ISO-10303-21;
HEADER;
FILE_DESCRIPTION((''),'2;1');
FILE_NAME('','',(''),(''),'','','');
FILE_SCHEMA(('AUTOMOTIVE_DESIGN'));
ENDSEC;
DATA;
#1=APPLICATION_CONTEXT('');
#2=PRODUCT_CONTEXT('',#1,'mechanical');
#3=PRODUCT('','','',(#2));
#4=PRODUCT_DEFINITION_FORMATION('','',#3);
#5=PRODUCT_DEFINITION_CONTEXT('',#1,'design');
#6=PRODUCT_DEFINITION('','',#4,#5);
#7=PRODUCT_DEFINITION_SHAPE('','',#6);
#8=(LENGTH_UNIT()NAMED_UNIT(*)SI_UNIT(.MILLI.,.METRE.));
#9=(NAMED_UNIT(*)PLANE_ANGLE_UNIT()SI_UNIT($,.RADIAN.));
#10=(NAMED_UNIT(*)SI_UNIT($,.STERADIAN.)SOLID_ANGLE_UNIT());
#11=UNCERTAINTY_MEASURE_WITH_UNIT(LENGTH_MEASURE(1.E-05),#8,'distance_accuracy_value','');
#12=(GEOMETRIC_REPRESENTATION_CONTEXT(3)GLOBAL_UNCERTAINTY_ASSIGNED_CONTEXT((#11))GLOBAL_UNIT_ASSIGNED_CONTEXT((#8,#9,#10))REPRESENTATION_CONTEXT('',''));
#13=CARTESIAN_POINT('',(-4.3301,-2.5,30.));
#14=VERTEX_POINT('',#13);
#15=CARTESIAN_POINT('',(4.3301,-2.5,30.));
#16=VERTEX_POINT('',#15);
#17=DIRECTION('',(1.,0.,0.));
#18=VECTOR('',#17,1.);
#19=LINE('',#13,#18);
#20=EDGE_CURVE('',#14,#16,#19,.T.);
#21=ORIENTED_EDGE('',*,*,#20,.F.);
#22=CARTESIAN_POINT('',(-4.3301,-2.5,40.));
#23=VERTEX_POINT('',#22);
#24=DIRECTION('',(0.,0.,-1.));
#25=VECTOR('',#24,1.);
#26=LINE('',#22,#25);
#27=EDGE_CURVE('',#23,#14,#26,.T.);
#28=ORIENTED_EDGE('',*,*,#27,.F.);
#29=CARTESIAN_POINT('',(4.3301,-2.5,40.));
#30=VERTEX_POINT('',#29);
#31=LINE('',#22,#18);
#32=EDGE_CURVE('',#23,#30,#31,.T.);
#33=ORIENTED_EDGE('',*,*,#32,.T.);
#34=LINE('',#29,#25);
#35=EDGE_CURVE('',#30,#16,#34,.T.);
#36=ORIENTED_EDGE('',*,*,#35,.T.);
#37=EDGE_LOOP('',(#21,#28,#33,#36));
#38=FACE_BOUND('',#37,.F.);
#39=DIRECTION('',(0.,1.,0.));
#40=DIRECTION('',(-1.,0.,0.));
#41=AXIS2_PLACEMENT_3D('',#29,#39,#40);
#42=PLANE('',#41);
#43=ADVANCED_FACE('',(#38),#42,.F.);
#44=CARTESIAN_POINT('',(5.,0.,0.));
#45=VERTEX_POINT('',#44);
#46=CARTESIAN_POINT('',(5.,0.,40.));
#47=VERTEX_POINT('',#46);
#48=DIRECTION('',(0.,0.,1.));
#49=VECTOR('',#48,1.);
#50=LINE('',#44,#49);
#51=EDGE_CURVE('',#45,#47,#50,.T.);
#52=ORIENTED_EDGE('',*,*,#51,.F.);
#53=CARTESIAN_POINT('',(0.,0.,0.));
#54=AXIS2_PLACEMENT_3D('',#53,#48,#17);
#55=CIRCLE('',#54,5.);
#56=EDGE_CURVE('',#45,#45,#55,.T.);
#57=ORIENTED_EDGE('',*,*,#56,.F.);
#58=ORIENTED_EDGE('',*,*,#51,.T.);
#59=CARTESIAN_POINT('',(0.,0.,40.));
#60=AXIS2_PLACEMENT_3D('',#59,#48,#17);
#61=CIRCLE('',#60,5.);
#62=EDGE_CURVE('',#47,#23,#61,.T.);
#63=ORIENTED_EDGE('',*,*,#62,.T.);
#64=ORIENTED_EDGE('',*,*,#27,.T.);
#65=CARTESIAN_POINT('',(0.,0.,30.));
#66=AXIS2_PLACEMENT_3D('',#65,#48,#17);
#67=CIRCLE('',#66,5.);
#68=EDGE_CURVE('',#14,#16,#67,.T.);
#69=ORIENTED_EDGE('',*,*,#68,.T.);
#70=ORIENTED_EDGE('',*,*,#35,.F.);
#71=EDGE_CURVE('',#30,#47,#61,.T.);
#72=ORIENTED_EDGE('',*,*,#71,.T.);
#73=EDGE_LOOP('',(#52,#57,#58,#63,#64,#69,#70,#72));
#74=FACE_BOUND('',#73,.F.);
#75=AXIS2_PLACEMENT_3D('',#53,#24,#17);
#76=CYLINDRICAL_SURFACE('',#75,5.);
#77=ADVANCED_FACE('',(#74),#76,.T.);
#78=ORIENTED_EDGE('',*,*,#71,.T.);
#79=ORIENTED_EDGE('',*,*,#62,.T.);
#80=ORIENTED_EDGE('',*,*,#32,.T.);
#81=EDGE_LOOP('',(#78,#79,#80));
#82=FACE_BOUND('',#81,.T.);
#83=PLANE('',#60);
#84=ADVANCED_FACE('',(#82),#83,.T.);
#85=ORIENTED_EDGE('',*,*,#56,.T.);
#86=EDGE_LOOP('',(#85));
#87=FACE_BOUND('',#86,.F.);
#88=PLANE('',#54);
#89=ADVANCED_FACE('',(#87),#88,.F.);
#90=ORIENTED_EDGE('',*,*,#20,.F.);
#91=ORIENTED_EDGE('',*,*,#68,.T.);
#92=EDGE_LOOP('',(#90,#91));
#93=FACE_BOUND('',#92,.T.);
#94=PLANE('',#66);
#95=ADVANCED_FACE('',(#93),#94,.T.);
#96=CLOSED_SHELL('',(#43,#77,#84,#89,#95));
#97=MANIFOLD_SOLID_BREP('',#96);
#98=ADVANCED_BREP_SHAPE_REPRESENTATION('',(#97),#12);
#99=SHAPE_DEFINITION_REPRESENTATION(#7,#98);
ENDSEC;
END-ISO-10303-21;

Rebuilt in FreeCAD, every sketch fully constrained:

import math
import FreeCAD as App
import Part
import Sketcher
Q = App.Units.Quantity

doc = App.newDocument("Part")
body = doc.addObject("PartDesign::Body", "Body")

# Sketch on XY plane
sketch1 = body.newObject("Sketcher::SketchObject", "Sketch")
sketch1.AttachmentSupport = (doc.getObject("XY_Plane"), [""])
sketch1.MapMode = "FlatFace"
sketch1.addGeometry(Part.Circle(App.Vector(0, 0, 0), App.Vector(0, 0, 1), 5), False)
sketch1.addConstraint([
    Sketcher.Constraint("Coincident", 0, 3, -1, 1),
    Sketcher.Constraint("Diameter", 0, Q("10 mm")),
])
pad1 = body.newObject("PartDesign::Pad", "Pad")
pad1.Profile = sketch1
pad1.Length = 40

# Sketch on XY plane
sketch2 = body.newObject("Sketcher::SketchObject", "Sketch001")
sketch2.AttachmentSupport = (doc.getObject("XY_Plane"), [""])
sketch2.MapMode = "FlatFace"
sketch2.AttachmentOffset = App.Placement(App.Vector(0, 0, 40), App.Rotation())
sketch2.addGeometry([
    Part.LineSegment(App.Vector(4.3301, -2.5, 0), App.Vector(-4.3301, -2.5, 0)),
    Part.ArcOfCircle(Part.Circle(App.Vector(0, 0, 0), App.Vector(0, 0, 1), 5), math.radians(-149.999845), math.radians(-30.000155)),
], False)
sketch2.addConstraint([
    Sketcher.Constraint("Coincident", 0, 1, 1, 2),
    Sketcher.Constraint("Coincident", 1, 1, 0, 2),
    Sketcher.Constraint("Horizontal", 0),
    Sketcher.Constraint("Coincident", 1, 3, -1, 1),
    Sketcher.Constraint("Radius", 1, Q("5 mm")),
    Sketcher.Constraint("DistanceY", 0, 1, -1, 1, Q("2.5 mm")),
])
pocket1 = body.newObject("PartDesign::Pocket", "Pocket")
pocket1.Profile = sketch2
pocket1.Length = 10

doc.recompute()
